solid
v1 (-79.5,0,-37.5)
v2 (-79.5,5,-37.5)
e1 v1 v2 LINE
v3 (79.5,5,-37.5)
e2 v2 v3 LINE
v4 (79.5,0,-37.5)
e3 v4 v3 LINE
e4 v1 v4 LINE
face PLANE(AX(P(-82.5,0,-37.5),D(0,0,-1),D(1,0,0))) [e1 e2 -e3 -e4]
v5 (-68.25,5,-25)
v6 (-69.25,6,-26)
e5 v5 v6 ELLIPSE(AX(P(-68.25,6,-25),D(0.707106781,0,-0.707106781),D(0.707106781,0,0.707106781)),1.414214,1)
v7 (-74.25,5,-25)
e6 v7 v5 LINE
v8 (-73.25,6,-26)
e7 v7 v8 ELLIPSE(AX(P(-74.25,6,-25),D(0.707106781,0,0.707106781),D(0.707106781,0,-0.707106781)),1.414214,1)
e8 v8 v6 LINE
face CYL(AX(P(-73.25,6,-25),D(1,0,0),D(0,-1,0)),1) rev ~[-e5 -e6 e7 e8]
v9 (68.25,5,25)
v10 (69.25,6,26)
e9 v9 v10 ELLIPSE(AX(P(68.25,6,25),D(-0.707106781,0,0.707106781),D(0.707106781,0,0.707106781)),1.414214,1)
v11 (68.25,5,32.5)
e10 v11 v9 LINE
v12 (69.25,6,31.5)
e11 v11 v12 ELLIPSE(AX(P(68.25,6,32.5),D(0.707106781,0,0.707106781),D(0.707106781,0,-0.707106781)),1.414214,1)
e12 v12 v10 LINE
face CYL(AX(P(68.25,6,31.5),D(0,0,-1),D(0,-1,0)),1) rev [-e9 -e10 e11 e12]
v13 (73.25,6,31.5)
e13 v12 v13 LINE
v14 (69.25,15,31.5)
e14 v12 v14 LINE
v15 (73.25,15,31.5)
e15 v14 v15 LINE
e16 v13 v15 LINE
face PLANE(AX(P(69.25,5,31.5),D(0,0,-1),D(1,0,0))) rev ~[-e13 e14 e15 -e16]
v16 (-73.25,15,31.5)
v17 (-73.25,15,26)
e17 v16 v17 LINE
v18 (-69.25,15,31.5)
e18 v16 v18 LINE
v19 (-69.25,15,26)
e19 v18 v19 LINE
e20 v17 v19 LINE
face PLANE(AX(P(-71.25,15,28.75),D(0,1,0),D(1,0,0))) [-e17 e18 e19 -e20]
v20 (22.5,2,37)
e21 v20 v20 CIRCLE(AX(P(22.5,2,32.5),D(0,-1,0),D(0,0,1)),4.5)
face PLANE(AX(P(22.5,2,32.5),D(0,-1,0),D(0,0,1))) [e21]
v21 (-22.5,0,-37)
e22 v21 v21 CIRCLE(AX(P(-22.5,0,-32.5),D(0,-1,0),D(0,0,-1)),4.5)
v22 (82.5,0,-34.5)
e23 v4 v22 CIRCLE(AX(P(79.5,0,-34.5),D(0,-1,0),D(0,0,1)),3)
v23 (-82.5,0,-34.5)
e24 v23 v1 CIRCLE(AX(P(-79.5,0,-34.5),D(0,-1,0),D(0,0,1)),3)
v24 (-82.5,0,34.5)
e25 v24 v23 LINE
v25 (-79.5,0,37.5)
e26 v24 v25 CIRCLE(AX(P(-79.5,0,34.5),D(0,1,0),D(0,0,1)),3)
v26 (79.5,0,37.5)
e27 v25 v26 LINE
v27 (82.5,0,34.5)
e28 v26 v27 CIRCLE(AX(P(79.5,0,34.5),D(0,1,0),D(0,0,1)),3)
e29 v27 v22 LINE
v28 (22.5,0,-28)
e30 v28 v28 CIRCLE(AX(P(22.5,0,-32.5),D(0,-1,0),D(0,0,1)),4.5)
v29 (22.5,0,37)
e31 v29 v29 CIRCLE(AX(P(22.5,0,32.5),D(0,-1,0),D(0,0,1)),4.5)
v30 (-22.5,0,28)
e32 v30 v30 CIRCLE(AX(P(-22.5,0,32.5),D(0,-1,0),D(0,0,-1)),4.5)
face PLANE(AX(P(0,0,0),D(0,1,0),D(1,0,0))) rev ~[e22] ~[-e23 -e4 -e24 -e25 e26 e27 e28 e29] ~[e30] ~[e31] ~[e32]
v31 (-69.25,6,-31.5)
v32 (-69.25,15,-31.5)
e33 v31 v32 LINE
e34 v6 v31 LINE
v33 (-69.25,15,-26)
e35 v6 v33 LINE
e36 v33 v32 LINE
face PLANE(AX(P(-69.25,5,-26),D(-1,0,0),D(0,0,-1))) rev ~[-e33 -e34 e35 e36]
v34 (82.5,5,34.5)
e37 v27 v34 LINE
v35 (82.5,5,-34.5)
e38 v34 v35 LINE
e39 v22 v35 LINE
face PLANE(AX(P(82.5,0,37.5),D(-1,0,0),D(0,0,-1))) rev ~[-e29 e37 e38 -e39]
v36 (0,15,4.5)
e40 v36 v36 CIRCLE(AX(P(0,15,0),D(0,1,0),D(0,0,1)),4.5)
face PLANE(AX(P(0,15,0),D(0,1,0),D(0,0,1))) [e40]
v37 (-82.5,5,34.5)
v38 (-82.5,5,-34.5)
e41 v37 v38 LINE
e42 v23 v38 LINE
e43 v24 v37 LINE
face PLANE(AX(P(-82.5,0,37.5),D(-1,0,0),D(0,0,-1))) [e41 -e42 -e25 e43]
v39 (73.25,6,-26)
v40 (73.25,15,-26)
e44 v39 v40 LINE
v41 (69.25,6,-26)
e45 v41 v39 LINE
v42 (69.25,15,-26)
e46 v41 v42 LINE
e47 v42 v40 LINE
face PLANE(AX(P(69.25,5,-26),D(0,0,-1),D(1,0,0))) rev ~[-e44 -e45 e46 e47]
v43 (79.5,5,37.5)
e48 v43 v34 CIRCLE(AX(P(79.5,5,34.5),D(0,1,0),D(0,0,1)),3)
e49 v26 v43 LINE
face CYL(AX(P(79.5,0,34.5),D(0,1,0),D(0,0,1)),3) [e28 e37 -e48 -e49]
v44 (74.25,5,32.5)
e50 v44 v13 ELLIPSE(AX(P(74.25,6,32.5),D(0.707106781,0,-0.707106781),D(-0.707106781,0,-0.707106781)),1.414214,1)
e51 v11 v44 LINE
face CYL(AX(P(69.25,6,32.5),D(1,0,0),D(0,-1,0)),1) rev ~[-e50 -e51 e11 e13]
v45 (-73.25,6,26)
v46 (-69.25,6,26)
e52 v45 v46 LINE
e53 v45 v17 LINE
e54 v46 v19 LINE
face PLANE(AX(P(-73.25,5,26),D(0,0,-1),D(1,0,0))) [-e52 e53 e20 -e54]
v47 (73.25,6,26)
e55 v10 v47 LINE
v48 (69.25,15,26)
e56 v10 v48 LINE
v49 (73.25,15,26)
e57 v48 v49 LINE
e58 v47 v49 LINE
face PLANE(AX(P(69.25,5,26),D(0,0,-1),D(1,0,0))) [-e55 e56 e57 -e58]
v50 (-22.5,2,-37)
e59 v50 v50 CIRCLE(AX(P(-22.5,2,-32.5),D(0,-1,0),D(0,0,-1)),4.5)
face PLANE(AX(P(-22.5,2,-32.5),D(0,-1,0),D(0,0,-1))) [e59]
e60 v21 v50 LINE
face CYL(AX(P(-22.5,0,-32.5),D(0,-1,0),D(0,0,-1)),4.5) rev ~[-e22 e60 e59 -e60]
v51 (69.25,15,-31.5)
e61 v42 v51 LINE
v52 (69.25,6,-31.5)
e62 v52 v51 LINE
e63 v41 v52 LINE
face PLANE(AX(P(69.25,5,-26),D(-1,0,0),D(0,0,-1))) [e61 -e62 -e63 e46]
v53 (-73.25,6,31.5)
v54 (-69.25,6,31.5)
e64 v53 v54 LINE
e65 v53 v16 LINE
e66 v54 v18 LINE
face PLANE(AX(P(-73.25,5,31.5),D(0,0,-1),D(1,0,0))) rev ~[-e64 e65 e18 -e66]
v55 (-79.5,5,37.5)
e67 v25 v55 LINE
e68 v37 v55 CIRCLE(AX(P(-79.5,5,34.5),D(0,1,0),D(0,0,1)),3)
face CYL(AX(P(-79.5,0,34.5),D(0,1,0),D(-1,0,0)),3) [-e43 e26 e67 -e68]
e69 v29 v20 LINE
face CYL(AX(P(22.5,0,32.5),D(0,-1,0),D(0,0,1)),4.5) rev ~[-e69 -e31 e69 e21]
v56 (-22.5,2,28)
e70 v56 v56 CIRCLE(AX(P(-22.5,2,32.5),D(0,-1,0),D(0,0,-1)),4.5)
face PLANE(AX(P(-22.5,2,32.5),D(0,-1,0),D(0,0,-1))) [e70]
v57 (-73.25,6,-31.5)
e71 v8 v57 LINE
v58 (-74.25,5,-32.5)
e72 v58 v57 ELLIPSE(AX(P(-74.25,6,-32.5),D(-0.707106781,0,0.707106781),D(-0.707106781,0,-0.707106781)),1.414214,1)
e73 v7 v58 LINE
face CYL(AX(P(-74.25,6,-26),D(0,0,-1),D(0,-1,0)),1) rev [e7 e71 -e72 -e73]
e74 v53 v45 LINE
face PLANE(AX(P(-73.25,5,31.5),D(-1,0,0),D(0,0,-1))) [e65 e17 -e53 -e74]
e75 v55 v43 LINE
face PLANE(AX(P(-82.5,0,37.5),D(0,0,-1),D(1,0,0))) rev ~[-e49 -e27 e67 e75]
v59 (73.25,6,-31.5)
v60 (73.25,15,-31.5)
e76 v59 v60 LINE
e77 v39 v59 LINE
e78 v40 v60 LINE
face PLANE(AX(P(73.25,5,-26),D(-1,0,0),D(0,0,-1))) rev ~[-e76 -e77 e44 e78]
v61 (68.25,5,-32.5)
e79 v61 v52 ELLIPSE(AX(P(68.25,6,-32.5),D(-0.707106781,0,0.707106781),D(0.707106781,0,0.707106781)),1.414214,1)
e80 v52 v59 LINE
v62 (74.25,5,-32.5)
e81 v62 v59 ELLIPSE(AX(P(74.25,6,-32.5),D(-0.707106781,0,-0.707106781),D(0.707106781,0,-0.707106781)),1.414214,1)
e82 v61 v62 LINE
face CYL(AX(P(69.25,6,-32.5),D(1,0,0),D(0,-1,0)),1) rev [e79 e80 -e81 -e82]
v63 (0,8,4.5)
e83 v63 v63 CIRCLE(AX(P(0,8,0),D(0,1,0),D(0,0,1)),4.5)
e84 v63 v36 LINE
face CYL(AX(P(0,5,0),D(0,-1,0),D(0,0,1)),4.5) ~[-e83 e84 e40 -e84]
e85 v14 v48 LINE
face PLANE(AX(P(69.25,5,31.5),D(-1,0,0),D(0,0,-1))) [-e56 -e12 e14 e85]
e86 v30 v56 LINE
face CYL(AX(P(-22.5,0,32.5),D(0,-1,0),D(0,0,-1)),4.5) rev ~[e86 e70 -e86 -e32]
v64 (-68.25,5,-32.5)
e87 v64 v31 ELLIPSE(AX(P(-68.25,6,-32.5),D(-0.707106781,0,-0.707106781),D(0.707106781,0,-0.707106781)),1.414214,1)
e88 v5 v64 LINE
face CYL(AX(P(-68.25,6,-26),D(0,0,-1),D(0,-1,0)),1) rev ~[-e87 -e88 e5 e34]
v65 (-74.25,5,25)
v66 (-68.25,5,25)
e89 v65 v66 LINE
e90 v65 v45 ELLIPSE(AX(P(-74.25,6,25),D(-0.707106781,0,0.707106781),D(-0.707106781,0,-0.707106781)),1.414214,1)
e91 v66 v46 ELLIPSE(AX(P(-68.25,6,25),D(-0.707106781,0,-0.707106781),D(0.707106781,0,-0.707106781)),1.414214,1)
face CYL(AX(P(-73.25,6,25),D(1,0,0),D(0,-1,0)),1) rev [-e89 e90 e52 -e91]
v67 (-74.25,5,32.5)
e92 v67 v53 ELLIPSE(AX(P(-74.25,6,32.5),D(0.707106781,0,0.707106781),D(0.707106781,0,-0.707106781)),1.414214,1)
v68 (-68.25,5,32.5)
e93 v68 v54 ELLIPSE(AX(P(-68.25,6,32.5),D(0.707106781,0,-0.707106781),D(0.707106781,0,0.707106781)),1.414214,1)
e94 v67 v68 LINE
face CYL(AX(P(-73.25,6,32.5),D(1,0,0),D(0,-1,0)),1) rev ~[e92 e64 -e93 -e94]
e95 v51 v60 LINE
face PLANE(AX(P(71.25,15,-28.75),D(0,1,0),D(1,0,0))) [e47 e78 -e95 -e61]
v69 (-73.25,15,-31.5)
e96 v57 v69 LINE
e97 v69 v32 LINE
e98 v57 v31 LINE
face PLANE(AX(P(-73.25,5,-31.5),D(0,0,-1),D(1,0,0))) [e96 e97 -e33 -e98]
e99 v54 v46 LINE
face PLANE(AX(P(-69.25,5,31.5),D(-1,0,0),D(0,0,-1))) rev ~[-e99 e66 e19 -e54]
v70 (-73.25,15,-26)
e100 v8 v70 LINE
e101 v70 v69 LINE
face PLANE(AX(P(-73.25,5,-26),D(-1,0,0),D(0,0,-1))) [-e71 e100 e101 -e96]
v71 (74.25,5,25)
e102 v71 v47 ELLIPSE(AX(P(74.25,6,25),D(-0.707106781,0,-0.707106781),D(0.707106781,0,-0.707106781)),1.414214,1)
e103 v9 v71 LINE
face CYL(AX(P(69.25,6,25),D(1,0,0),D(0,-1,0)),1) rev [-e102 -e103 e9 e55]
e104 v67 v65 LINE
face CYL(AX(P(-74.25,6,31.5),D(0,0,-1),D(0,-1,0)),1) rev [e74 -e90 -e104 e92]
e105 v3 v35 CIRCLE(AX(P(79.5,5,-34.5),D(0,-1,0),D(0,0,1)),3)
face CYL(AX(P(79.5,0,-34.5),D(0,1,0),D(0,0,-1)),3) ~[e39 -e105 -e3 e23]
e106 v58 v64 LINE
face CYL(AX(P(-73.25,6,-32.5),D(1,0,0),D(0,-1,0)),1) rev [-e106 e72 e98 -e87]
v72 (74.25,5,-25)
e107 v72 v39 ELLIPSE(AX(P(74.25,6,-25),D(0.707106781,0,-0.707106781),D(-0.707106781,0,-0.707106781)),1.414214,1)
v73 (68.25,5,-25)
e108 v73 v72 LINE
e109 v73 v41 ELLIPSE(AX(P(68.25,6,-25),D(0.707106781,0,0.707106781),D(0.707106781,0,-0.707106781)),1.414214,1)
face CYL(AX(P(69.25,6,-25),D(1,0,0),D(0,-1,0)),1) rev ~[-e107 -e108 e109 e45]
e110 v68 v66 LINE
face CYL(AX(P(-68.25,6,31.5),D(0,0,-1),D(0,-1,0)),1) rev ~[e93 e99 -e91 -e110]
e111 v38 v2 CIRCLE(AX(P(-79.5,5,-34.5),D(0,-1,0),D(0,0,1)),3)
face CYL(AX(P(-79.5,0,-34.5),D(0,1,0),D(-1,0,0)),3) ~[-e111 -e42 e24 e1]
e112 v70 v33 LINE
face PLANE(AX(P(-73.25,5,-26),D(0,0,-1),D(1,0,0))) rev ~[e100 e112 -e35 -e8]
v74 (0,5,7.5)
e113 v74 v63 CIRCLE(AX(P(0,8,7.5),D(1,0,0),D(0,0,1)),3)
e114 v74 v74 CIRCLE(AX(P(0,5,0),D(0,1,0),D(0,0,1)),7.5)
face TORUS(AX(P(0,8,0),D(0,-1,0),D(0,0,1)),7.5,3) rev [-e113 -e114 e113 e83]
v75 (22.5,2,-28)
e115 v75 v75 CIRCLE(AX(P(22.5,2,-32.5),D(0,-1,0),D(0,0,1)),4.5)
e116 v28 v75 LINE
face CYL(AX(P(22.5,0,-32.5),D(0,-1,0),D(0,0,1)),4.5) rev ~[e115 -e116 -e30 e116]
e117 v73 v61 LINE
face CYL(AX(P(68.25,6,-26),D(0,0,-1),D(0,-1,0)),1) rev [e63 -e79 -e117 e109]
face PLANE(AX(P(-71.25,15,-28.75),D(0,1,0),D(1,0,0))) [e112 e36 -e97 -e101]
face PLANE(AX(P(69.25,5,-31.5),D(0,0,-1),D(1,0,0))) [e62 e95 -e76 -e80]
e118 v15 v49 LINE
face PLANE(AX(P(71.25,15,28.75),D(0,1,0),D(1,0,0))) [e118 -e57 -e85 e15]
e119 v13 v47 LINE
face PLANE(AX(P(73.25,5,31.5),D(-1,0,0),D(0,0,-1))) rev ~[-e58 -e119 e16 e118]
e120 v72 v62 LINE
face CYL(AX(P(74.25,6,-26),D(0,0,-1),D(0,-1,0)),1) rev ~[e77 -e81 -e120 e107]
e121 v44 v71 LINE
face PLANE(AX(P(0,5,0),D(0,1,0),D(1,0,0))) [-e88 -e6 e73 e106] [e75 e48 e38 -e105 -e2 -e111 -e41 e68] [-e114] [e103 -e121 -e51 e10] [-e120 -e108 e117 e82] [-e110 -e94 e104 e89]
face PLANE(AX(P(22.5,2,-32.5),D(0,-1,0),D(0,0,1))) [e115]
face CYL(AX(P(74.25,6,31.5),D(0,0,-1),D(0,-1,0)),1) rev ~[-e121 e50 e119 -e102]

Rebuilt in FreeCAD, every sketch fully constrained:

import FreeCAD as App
import Part
import Sketcher
from FreeCAD import Vector


def edges_at(feature, points):
    """Names of the edges that pass closest to the given points."""
    edges = feature.Shape.Edges
    near = lambda p: min(range(len(edges)), key=lambda i: edges[i].distToShape(Part.Vertex(*p))[0])
    return sorted({f"Edge{near(p) + 1}" for p in points})


def add_polygon(sketch, points):
    """Adds a closed chain of lines whose ends are joined by coincident constraints."""
    first, n = sketch.GeometryCount, len(points)
    for a, b in zip(points, points[1:] + points[:1]):
        sketch.addGeometry(Part.LineSegment(App.Vector(*a, 0), App.Vector(*b, 0)), False)
    for i in range(n):
        sketch.addConstraint(Sketcher.Constraint("Coincident", first + i, 2, first + (i + 1) % n, 1))

doc = App.newDocument("Part")
params = doc.addObject("Spreadsheet::Sheet", "Params")
for row, (alias, value) in enumerate([
    ("sketch1_width", "165 mm"),
    ("sketch1_height", "75 mm"),
    ("pad1_length", "5 mm"),
    ("sketch2_diameter", "9 mm"),
    ("sketch2_width", "4 mm"),
    ("sketch2_height", "5.5 mm"),
    ("pad2_length", "10 mm"),
    ("fillet_radius", "3 mm"),
    ("fillet2_radius", "3 mm"),
    ("fillet3_radius", "1 mm"),
    ("sketch3_diameter", "9 mm"),
    ("pocket1_length", "2 mm"),
], start=1):
    params.set(f"A{row}", alias)
    params.set(f"B{row}", "=" + value)
    params.setAlias(f"B{row}", alias)

body = doc.addObject("PartDesign::Body", "Body")

sketch1 = body.newObject("Sketcher::SketchObject", "Sketch")
sketch1.AttachmentSupport = (doc.getObject("XZ_Plane"), [""])
sketch1.MapMode = "FlatFace"
add_polygon(sketch1, [(-82, -38), (-82, 38), (82, 38), (82, -38)])
sketch1.addConstraint([
    Sketcher.Constraint("Vertical", 0),
    Sketcher.Constraint("Horizontal", 1),
    Sketcher.Constraint("Vertical", 2),
    Sketcher.Constraint("Horizontal", 3),
    Sketcher.Constraint("Symmetric", 0, 2, 2, 2, -1, 1),
    Sketcher.Constraint("DistanceX", 1, 1, 1, 2, 165.0),
    Sketcher.Constraint("DistanceY", 0, 1, 0, 2, 75.0),
])
sketch1.setExpression("Constraints[9]", "Params.sketch1_width")
sketch1.setExpression("Constraints[10]", "Params.sketch1_height")
pad1 = body.newObject("PartDesign::Pad", "Pad")
pad1.Profile = sketch1
pad1.setExpression("Length", "Params.pad1_length")
pad1.Reversed = True

sketch2 = body.newObject("Sketcher::SketchObject", "Sketch001")
sketch2.AttachmentSupport = (doc.getObject("XZ_Plane"), [""])
sketch2.MapMode = "FlatFace"
sketch2.AttachmentOffset = App.Placement(Vector(0, 0, -5), App.Rotation())
sketch2.addGeometry(Part.Circle(Vector(0, 0, 0), Vector(0, 0, 1), 4.5), False)
add_polygon(sketch2, [(-73.2, -31.5), (-73.2, -26), (-69.2, -26), (-69.2, -31.5)])
add_polygon(sketch2, [(-73.2, 26), (-73.2, 31.5), (-69.2, 31.5), (-69.2, 26)])
add_polygon(sketch2, [(69.2, 26), (69.2, 31.5), (73.2, 31.5), (73.2, 26)])
add_polygon(sketch2, [(69.2, -31.5), (69.2, -26), (73.2, -26), (73.2, -31.5)])
sketch2.addConstraint([
    Sketcher.Constraint("Vertical", 1),
    Sketcher.Constraint("Horizontal", 2),
    Sketcher.Constraint("Vertical", 3),
    Sketcher.Constraint("Horizontal", 4),
    Sketcher.Constraint("Vertical", 5),
    Sketcher.Constraint("Horizontal", 6),
    Sketcher.Constraint("Vertical", 7),
    Sketcher.Constraint("Horizontal", 8),
    Sketcher.Constraint("Vertical", 9),
    Sketcher.Constraint("Horizontal", 10),
    Sketcher.Constraint("Vertical", 11),
    Sketcher.Constraint("Horizontal", 12),
    Sketcher.Constraint("Vertical", 13),
    Sketcher.Constraint("Horizontal", 14),
    Sketcher.Constraint("Vertical", 15),
    Sketcher.Constraint("Horizontal", 16),
    Sketcher.Constraint("Coincident", 0, 3, -1, 1),
    Sketcher.Constraint("Symmetric", 3, 2, 9, 2, -1, 1),
    Sketcher.Constraint("Symmetric", 1, 2, 11, 2, -1, 1),
    Sketcher.Constraint("Symmetric", 7, 2, 13, 2, -1, 1),
    Sketcher.Constraint("Symmetric", 5, 2, 15, 2, -1, 1),
    Sketcher.Constraint("Symmetric", 6, 2, 9, 2, -2),
    Sketcher.Constraint("Symmetric", 8, 2, 11, 2, -2),
    Sketcher.Constraint("Diameter", 0, 9.0),
    Sketcher.Constraint("DistanceX", 2, 1, 2, 2, 4.0),
    Sketcher.Constraint("DistanceY", 1, 1, 1, 2, 5.5),
    Sketcher.Constraint("DistanceY", 1, 2, -1, 1, 26.0),
    Sketcher.Constraint("DistanceX", 6, 2, 9, 2, 138.5),
])
sketch2.setExpression("Constraints[39]", "Params.sketch2_diameter")
sketch2.setExpression("Constraints[40]", "Params.sketch2_width")
sketch2.setExpression("Constraints[41]", "Params.sketch2_height")
pad2 = body.newObject("PartDesign::Pad", "Pad001")
pad2.Profile = sketch2
pad2.setExpression("Length", "Params.pad2_length")
pad2.Reversed = True
doc.recompute()

fillet = body.newObject("PartDesign::Fillet", "Fillet")
fillet.Base = (pad2, edges_at(pad2, [(0, 5, -4.5)]))
fillet.setExpression("Radius", "Params.fillet_radius")
doc.recompute()

fillet2 = body.newObject("PartDesign::Fillet", "Fillet001")
fillet2.Base = (fillet, edges_at(fillet, [
    (82.5, 2.5, 37.5),
    (-82.5, 2.5, 37.5),
    (-82.5, 2.5, -37.5),
    (82.5, 2.5, -37.5),
]))
fillet2.setExpression("Radius", "Params.fillet2_radius")
doc.recompute()

fillet3 = body.newObject("PartDesign::Fillet", "Fillet002")
fillet3.Base = (fillet2, edges_at(fillet2, [
    (-71.25, 5, -26),
    (-69.25, 5, -28.75),
    (-73.25, 5, -28.75),
    (-71.25, 5, -31.5),
    (73.25, 5, 28.75),
    (71.25, 5, 26),
    (71.25, 5, 31.5),
    (69.25, 5, 28.75),
    (73.25, 5, -28.75),
    (71.25, 5, -31.5),
    (71.25, 5, -26),
    (69.25, 5, -28.75),
    (-71.25, 5, 31.5),
    (-69.25, 5, 28.75),
    (-73.25, 5, 28.75),
    (-71.25, 5, 26),
]))
fillet3.setExpression("Radius", "Params.fillet3_radius")

sketch3 = body.newObject("Sketcher::SketchObject", "Sketch002")
sketch3.AttachmentSupport = (doc.getObject("XZ_Plane"), [""])
sketch3.MapMode = "FlatFace"
sketch3.addGeometry([
    Part.Circle(Vector(-22.5, -32.5, 0), Vector(0, 0, 1), 4.5),
    Part.Circle(Vector(-22.5, 32.5, 0), Vector(0, 0, 1), 4.5),
    Part.Circle(Vector(22.5, 32.5, 0), Vector(0, 0, 1), 4.5),
    Part.Circle(Vector(22.5, -32.5, 0), Vector(0, 0, 1), 4.5),
], False)
sketch3.addConstraint([
    Sketcher.Constraint("Equal", 0, 1),
    Sketcher.Constraint("Equal", 1, 2),
    Sketcher.Constraint("Equal", 2, 3),
    Sketcher.Constraint("Symmetric", 0, 3, 2, 3, -1, 1),
    Sketcher.Constraint("Symmetric", 1, 3, 3, 3, -1, 1),
    Sketcher.Constraint("Symmetric", 1, 3, 2, 3, -2),
    Sketcher.Constraint("Diameter", 0, 9.0),
    Sketcher.Constraint("DistanceY", 0, 3, 1, 3, 65.0),
    Sketcher.Constraint("DistanceX", 1, 3, 2, 3, 45.0),
])
sketch3.setExpression("Constraints[6]", "Params.sketch3_diameter")
pocket1 = body.newObject("PartDesign::Pocket", "Pocket")
pocket1.Profile = sketch3
pocket1.setExpression("Length", "Params.pocket1_length")

doc.recompute()
